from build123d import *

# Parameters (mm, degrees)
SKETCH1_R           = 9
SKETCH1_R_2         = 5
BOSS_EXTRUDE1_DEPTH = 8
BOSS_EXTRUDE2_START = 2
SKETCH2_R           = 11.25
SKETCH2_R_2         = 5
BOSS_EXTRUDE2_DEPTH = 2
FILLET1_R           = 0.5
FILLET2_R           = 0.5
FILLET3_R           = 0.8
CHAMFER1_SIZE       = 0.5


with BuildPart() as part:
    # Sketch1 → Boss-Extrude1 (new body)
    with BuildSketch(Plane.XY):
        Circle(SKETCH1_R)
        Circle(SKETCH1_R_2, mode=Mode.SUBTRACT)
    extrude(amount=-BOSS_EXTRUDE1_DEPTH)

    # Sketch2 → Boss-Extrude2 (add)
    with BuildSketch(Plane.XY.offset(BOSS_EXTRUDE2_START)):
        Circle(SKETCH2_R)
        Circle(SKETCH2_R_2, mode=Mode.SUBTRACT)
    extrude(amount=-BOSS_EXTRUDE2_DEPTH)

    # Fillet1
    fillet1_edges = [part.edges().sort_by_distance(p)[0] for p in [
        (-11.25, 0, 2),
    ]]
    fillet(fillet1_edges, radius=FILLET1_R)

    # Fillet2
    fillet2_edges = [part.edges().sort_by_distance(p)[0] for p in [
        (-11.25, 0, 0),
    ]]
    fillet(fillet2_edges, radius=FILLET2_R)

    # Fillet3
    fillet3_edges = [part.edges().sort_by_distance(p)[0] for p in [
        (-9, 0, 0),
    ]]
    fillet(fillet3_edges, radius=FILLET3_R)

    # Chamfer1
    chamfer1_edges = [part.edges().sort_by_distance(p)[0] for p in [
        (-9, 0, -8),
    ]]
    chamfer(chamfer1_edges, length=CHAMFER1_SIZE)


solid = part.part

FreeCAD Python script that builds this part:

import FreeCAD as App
import Part
import Sketcher


def edges_at(feature, points):
    """Names of the edges that pass closest to the given points."""
    edges = feature.Shape.Edges
    near = lambda p: min(range(len(edges)), key=lambda i: edges[i].distToShape(Part.Vertex(*p))[0])
    return sorted({f"Edge{near(p) + 1}" for p in points})

doc = App.newDocument("Part")
params = doc.addObject("Spreadsheet::Sheet", "Params")
for row, (alias, value) in enumerate([
    ("sketch1_diameter", "18 mm"),
    ("sketch1_diameter2", "10 mm"),
    ("pad1_length", "8 mm"),
    ("sketch2_diameter", "10 mm"),
    ("sketch2_diameter2", "22.5 mm"),
    ("pad2_length", "2 mm"),
    ("fillet_radius", "0.5 mm"),
    ("fillet2_radius", "0.5 mm"),
    ("fillet3_radius", "0.8 mm"),
    ("chamfer_size", "0.5 mm"),
], start=1):
    params.set(f"A{row}", alias)
    params.set(f"B{row}", "=" + value)
    params.setAlias(f"B{row}", alias)

body = doc.addObject("PartDesign::Body", "Body")

# Sketch on XY plane
sketch1 = doc.addObject("Sketcher::SketchObject", "Sketch")
body.addObject(sketch1)
sketch1.AttachmentSupport = (doc.XY_Plane, [""])
sketch1.MapMode = "FlatFace"
sketch1.addGeometry(Part.Circle(App.Vector(0, 0, 0), App.Vector(0, 0, 1), 9), False)
sketch1.addGeometry(Part.Circle(App.Vector(0, 0, 0), App.Vector(0, 0, 1), 5), False)
sketch1.addConstraint(Sketcher.Constraint("Coincident", 0, 3, -1, 1))
sketch1.addConstraint(Sketcher.Constraint("Coincident", 1, 3, -1, 1))
sketch1.addConstraint(Sketcher.Constraint("Diameter", 0, 18.0))
sketch1.addConstraint(Sketcher.Constraint("Diameter", 1, 10.0))
sketch1.setExpression("Constraints[2]", "Params.sketch1_diameter")
sketch1.setExpression("Constraints[3]", "Params.sketch1_diameter2")
pad1 = doc.addObject("PartDesign::Pad", "Pad")
body.addObject(pad1)
pad1.Profile = sketch1
pad1.setExpression("Length", "Params.pad1_length")
pad1.Reversed = True

# Sketch on XY plane
sketch2 = doc.addObject("Sketcher::SketchObject", "Sketch001")
body.addObject(sketch2)
sketch2.AttachmentSupport = (doc.XY_Plane, [""])
sketch2.MapMode = "FlatFace"
sketch2.AttachmentOffset = App.Placement(App.Vector(0, 0, 2), App.Rotation())
sketch2.addGeometry(Part.Circle(App.Vector(0, 0, 0), App.Vector(0, 0, 1), 11), False)
sketch2.addGeometry(Part.Circle(App.Vector(0, 0, 0), App.Vector(0, 0, 1), 5), False)
sketch2.addConstraint(Sketcher.Constraint("Coincident", 0, 3, -1, 1))
sketch2.addConstraint(Sketcher.Constraint("Coincident", 1, 3, -1, 1))
sketch2.addConstraint(Sketcher.Constraint("Diameter", 1, 10.0))
sketch2.addConstraint(Sketcher.Constraint("Diameter", 0, 22.5))
sketch2.setExpression("Constraints[2]", "Params.sketch2_diameter")
sketch2.setExpression("Constraints[3]", "Params.sketch2_diameter2")
pad2 = doc.addObject("PartDesign::Pad", "Pad001")
body.addObject(pad2)
pad2.Profile = sketch2
pad2.setExpression("Length", "Params.pad2_length")
pad2.Reversed = True
doc.recompute()

fillet = doc.addObject("PartDesign::Fillet", "Fillet")
body.addObject(fillet)
fillet.Base = (pad2, edges_at(pad2, [(-11.25, 0, 2)]))
fillet.setExpression("Radius", "Params.fillet_radius")
doc.recompute()

fillet2 = doc.addObject("PartDesign::Fillet", "Fillet001")
body.addObject(fillet2)
fillet2.Base = (fillet, edges_at(fillet, [(-11.25, 0, 0)]))
fillet2.setExpression("Radius", "Params.fillet2_radius")
doc.recompute()

fillet3 = doc.addObject("PartDesign::Fillet", "Fillet002")
body.addObject(fillet3)
fillet3.Base = (fillet2, edges_at(fillet2, [(-9, 0, 0)]))
fillet3.setExpression("Radius", "Params.fillet3_radius")
doc.recompute()

chamfer = doc.addObject("PartDesign::Chamfer", "Chamfer")
body.addObject(chamfer)
chamfer.Base = (fillet3, edges_at(fillet3, [(-9, 0, -8)]))
chamfer.setExpression("Size", "Params.chamfer_size")

doc.recompute()
